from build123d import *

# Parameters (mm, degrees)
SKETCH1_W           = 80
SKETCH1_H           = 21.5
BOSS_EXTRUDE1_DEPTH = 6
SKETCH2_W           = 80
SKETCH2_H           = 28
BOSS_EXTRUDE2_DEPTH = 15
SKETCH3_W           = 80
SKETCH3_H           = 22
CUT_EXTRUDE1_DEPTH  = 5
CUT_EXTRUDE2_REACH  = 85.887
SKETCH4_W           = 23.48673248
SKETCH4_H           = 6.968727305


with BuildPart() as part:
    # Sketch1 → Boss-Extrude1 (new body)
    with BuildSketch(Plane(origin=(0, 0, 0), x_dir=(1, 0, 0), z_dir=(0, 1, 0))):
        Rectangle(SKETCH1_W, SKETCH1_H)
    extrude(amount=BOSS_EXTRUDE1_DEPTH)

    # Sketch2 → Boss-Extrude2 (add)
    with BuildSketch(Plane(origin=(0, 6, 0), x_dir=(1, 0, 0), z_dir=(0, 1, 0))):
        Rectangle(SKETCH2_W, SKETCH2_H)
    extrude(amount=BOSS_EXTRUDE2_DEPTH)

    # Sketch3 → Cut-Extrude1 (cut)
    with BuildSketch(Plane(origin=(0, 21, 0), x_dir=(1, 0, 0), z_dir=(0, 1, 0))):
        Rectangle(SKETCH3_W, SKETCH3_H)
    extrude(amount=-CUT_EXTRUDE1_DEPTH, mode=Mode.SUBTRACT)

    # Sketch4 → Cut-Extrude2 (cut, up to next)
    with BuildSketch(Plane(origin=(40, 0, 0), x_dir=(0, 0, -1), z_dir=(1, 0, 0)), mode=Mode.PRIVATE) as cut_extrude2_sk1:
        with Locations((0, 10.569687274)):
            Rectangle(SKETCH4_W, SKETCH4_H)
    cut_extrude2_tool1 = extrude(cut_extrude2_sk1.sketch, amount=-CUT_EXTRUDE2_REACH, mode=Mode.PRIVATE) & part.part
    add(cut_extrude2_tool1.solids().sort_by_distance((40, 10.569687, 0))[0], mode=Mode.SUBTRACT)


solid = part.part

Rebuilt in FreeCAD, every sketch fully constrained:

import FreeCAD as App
import Part
import Sketcher

V = App.Vector
Q = App.Units.Quantity

doc = App.newDocument("Part")
body = doc.addObject("PartDesign::Body", "Body")

sketch1 = doc.addObject("Sketcher::SketchObject", "Sketch")
body.addObject(sketch1)
sketch1.AttachmentSupport = (doc.XZ_Plane, [""])
sketch1.MapMode = "FlatFace"
sketch1.addGeometry(Part.LineSegment(V(-40, -10.75, 0), V(-40, 10.75, 0)), False)
sketch1.addGeometry(Part.LineSegment(V(-40, 10.75, 0), V(40, 10.75, 0)), False)
sketch1.addGeometry(Part.LineSegment(V(40, 10.75, 0), V(40, -10.75, 0)), False)
sketch1.addGeometry(Part.LineSegment(V(40, -10.75, 0), V(-40, -10.75, 0)), False)
sketch1.addConstraint(Sketcher.Constraint("Coincident", 0, 2, 1, 1))
sketch1.addConstraint(Sketcher.Constraint("Coincident", 1, 2, 2, 1))
sketch1.addConstraint(Sketcher.Constraint("Coincident", 2, 2, 3, 1))
sketch1.addConstraint(Sketcher.Constraint("Coincident", 3, 2, 0, 1))
sketch1.addConstraint(Sketcher.Constraint("Vertical", 0))
sketch1.addConstraint(Sketcher.Constraint("Horizontal", 1))
sketch1.addConstraint(Sketcher.Constraint("Vertical", 2))
sketch1.addConstraint(Sketcher.Constraint("Horizontal", 3))
sketch1.addConstraint(Sketcher.Constraint("Symmetric", 0, 2, 2, 2, -1, 1))
sketch1.addConstraint(Sketcher.Constraint("DistanceX", 1, 1, 1, 2, Q("80 mm")))
sketch1.addConstraint(Sketcher.Constraint("DistanceY", 0, 1, 0, 2, Q("21.5 mm")))
pad1 = doc.addObject("PartDesign::Pad", "Pad")
body.addObject(pad1)
pad1.Profile = sketch1
pad1.Length = 6
pad1.Reversed = True

sketch2 = doc.addObject("Sketcher::SketchObject", "Sketch001")
body.addObject(sketch2)
sketch2.AttachmentSupport = (doc.XZ_Plane, [""])
sketch2.MapMode = "FlatFace"
sketch2.AttachmentOffset = App.Placement(V(0, 0, -6), App.Rotation())
sketch2.addGeometry(Part.LineSegment(V(-40, -14, 0), V(-40, 14, 0)), False)
sketch2.addGeometry(Part.LineSegment(V(-40, 14, 0), V(40, 14, 0)), False)
sketch2.addGeometry(Part.LineSegment(V(40, 14, 0), V(40, -14, 0)), False)
sketch2.addGeometry(Part.LineSegment(V(40, -14, 0), V(-40, -14, 0)), False)
sketch2.addConstraint(Sketcher.Constraint("Coincident", 0, 2, 1, 1))
sketch2.addConstraint(Sketcher.Constraint("Coincident", 1, 2, 2, 1))
sketch2.addConstraint(Sketcher.Constraint("Coincident", 2, 2, 3, 1))
sketch2.addConstraint(Sketcher.Constraint("Coincident", 3, 2, 0, 1))
sketch2.addConstraint(Sketcher.Constraint("Vertical", 0))
sketch2.addConstraint(Sketcher.Constraint("Horizontal", 1))
sketch2.addConstraint(Sketcher.Constraint("Vertical", 2))
sketch2.addConstraint(Sketcher.Constraint("Horizontal", 3))
sketch2.addConstraint(Sketcher.Constraint("Symmetric", 0, 2, 2, 2, -1, 1))
sketch2.addConstraint(Sketcher.Constraint("DistanceX", 1, 1, 1, 2, Q("80 mm")))
sketch2.addConstraint(Sketcher.Constraint("DistanceY", 0, 1, 0, 2, Q("28 mm")))
pad2 = doc.addObject("PartDesign::Pad", "Pad001")
body.addObject(pad2)
pad2.Profile = sketch2
pad2.Length = 15
pad2.Reversed = True

sketch3 = doc.addObject("Sketcher::SketchObject", "Sketch002")
body.addObject(sketch3)
sketch3.AttachmentSupport = (doc.XZ_Plane, [""])
sketch3.MapMode = "FlatFace"
sketch3.AttachmentOffset = App.Placement(V(0, 0, -21), App.Rotation())
sketch3.addGeometry(Part.LineSegment(V(-40, -11, 0), V(-40, 11, 0)), False)
sketch3.addGeometry(Part.LineSegment(V(-40, 11, 0), V(40, 11, 0)), False)
sketch3.addGeometry(Part.LineSegment(V(40, 11, 0), V(40, -11, 0)), False)
sketch3.addGeometry(Part.LineSegment(V(40, -11, 0), V(-40, -11, 0)), False)
sketch3.addConstraint(Sketcher.Constraint("Coincident", 0, 2, 1, 1))
sketch3.addConstraint(Sketcher.Constraint("Coincident", 1, 2, 2, 1))
sketch3.addConstraint(Sketcher.Constraint("Coincident", 2, 2, 3, 1))
sketch3.addConstraint(Sketcher.Constraint("Coincident", 3, 2, 0, 1))
sketch3.addConstraint(Sketcher.Constraint("Vertical", 0))
sketch3.addConstraint(Sketcher.Constraint("Horizontal", 1))
sketch3.addConstraint(Sketcher.Constraint("Vertical", 2))
sketch3.addConstraint(Sketcher.Constraint("Horizontal", 3))
sketch3.addConstraint(Sketcher.Constraint("Symmetric", 0, 2, 2, 2, -1, 1))
sketch3.addConstraint(Sketcher.Constraint("DistanceX", 1, 1, 1, 2, Q("80 mm")))
sketch3.addConstraint(Sketcher.Constraint("DistanceY", 0, 1, 0, 2, Q("22 mm")))
pocket1 = doc.addObject("PartDesign::Pocket", "Pocket")
body.addObject(pocket1)
pocket1.Profile = sketch3
pocket1.Length = 5
pocket1.Reversed = True

sketch4 = doc.addObject("Sketcher::SketchObject", "Sketch003")
body.addObject(sketch4)
sketch4.AttachmentSupport = (doc.YZ_Plane, [""])
sketch4.MapMode = "FlatFace"
sketch4.AttachmentOffset = App.Placement(V(0, 0, 40), App.Rotation())
sketch4.addGeometry(Part.LineSegment(V(14.054051, 11.743366, 0), V(7.085324, 11.743366, 0)), False)
sketch4.addGeometry(Part.LineSegment(V(7.085324, 11.743366, 0), V(7.085324, -11.743366, 0)), False)
sketch4.addGeometry(Part.LineSegment(V(7.085324, -11.743366, 0), V(14.054051, -11.743366, 0)), False)
sketch4.addGeometry(Part.LineSegment(V(14.054051, -11.743366, 0), V(14.054051, 11.743366, 0)), False)
sketch4.addConstraint(Sketcher.Constraint("Coincident", 0, 2, 1, 1))
sketch4.addConstraint(Sketcher.Constraint("Coincident", 1, 2, 2, 1))
sketch4.addConstraint(Sketcher.Constraint("Coincident", 2, 2, 3, 1))
sketch4.addConstraint(Sketcher.Constraint("Coincident", 3, 2, 0, 1))
sketch4.addConstraint(Sketcher.Constraint("Horizontal", 0))
sketch4.addConstraint(Sketcher.Constraint("Vertical", 1))
sketch4.addConstraint(Sketcher.Constraint("Horizontal", 2))
sketch4.addConstraint(Sketcher.Constraint("Vertical", 3))
sketch4.addConstraint(Sketcher.Constraint("DistanceX", 0, 2, 0, 1, Q("6.968727 mm")))
sketch4.addConstraint(Sketcher.Constraint("DistanceY", 1, 2, 1, 1, Q("23.486732 mm")))
sketch4.addConstraint(Sketcher.Constraint("DistanceX", -1, 1, 2, 2, Q("14.054051 mm")))
sketch4.addConstraint(Sketcher.Constraint("DistanceY", -1, 1, 0, 2, Q("11.743366 mm")))
pocket2 = doc.addObject("PartDesign::Pocket", "Pocket001")
body.addObject(pocket2)
pocket2.Profile = sketch4
pocket2.Type = "UpToFirst"

doc.recompute()
